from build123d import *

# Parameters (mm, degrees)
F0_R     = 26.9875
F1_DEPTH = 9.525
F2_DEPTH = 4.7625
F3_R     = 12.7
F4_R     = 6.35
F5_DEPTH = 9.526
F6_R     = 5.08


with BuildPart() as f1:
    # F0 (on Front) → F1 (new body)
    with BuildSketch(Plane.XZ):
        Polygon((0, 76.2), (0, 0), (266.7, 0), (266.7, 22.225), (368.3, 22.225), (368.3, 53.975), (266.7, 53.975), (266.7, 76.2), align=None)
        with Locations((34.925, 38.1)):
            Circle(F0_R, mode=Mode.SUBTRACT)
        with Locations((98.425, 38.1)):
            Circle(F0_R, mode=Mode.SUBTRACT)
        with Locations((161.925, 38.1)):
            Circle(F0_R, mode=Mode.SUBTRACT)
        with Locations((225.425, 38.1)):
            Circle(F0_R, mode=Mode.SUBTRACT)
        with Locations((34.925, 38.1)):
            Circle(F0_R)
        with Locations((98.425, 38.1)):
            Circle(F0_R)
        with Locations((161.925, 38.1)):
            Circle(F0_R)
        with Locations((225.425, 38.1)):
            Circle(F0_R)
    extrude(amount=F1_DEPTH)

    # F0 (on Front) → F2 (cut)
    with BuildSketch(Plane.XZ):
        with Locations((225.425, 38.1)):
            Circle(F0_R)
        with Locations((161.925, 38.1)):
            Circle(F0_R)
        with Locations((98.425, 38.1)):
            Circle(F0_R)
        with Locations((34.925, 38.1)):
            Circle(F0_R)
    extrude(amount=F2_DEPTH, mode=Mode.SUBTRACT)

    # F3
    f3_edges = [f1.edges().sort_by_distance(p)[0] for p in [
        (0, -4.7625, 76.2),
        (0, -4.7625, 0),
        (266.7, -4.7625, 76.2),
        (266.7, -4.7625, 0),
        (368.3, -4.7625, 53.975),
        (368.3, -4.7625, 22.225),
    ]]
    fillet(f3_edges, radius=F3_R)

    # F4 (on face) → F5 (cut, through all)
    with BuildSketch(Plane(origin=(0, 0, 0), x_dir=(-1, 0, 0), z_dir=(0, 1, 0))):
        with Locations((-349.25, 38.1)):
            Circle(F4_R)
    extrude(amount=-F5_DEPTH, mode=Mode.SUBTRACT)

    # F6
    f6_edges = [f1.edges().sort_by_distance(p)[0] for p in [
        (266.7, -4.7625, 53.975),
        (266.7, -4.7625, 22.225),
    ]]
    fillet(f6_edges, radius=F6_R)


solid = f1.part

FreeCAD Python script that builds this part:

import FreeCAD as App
import Part
import Sketcher

V = App.Vector
Q = App.Units.Quantity


def edges_at(feature, points):
    """Names of the edges that pass closest to the given points."""
    edges = feature.Shape.Edges
    near = lambda p: min(range(len(edges)), key=lambda i: edges[i].distToShape(Part.Vertex(*p))[0])
    return sorted({f"Edge{near(p) + 1}" for p in points})

doc = App.newDocument("Part")
body = doc.addObject("PartDesign::Body", "Body")

# Sketch on XZ plane
sketch1 = body.newObject("Sketcher::SketchObject", "Sketch")
sketch1.AttachmentSupport = (doc.getObject("XZ_Plane"), [""])
sketch1.MapMode = "FlatFace"
sketch1.addGeometry([
    Part.LineSegment(V(0, 76, 0), V(0, 0, 0)),  # 0
    Part.LineSegment(V(0, 0, 0), V(267, 0, 0)),  # 1
    Part.LineSegment(V(267, 0, 0), V(267, 22, 0)),  # 2
    Part.LineSegment(V(267, 22, 0), V(368, 22, 0)),  # 3
    Part.LineSegment(V(368, 22, 0), V(368, 54, 0)),  # 4
    Part.LineSegment(V(368, 54, 0), V(267, 54, 0)),  # 5
    Part.LineSegment(V(267, 54, 0), V(267, 76, 0)),  # 6
    Part.LineSegment(V(267, 76, 0), V(0, 76, 0)),  # 7
], False)
sketch1.addConstraint([
    Sketcher.Constraint("Coincident", 0, 2, 1, 1),
    Sketcher.Constraint("Coincident", 1, 2, 2, 1),
    Sketcher.Constraint("Coincident", 2, 2, 3, 1),
    Sketcher.Constraint("Coincident", 3, 2, 4, 1),
    Sketcher.Constraint("Coincident", 4, 2, 5, 1),
    Sketcher.Constraint("Coincident", 5, 2, 6, 1),
    Sketcher.Constraint("Coincident", 6, 2, 7, 1),
    Sketcher.Constraint("Coincident", 7, 2, 0, 1),
    Sketcher.Constraint("Vertical", 0),
    Sketcher.Constraint("Horizontal", 1),
    Sketcher.Constraint("Vertical", 2),
    Sketcher.Constraint("Horizontal", 3),
    Sketcher.Constraint("Vertical", 4),
    Sketcher.Constraint("Horizontal", 5),
    Sketcher.Constraint("Vertical", 6),
    Sketcher.Constraint("Horizontal", 7),
    Sketcher.Constraint("Coincident", 0, 2, -1, 1),
    Sketcher.Constraint("Vertical", 2, 2, 5, 2),
    Sketcher.Constraint("Equal", 2, 6),
    Sketcher.Constraint("DistanceX", 3, 1, 3, 2, Q("4 in")),
    Sketcher.Constraint("DistanceY", 0, 2, 0, 1, Q("3 in")),
    Sketcher.Constraint("DistanceX", 1, 1, 1, 2, Q("10.5 in")),
    Sketcher.Constraint("DistanceY", 4, 1, 4, 2, Q("1.25 in")),
])
pad1 = body.newObject("PartDesign::Pad", "Pad")
pad1.Profile = sketch1
pad1.Length = Q("0.375 in")

# Sketch on XZ plane
sketch2 = body.newObject("Sketcher::SketchObject", "Sketch001")
sketch2.AttachmentSupport = (doc.getObject("XZ_Plane"), [""])
sketch2.MapMode = "FlatFace"
sketch2.addGeometry([
    Part.Circle(V(225, 38, 0), V(0, 0, 1), 27),
    Part.Circle(V(162, 38, 0), V(0, 0, 1), 27),
    Part.Circle(V(98, 38, 0), V(0, 0, 1), 27),
    Part.Circle(V(35, 38, 0), V(0, 0, 1), 27),
], False)
sketch2.addConstraint([
    Sketcher.Constraint("Equal", 0, 1),
    Sketcher.Constraint("Equal", 1, 2),
    Sketcher.Constraint("Equal", 2, 3),
    Sketcher.Constraint("Horizontal", 0, 3, 1, 3),
    Sketcher.Constraint("Horizontal", 1, 3, 2, 3),
    Sketcher.Constraint("Horizontal", 2, 3, 3, 3),
    Sketcher.Constraint("Diameter", 0, Q("2.125 in")),
    Sketcher.Constraint("DistanceX", 2, 3, 0, 3, Q("5 in")),
    Sketcher.Constraint("DistanceX", 3, 3, 1, 3, Q("5 in")),
    Sketcher.Constraint("DistanceY", -1, 1, 0, 3, Q("1.5 in")),
    Sketcher.Constraint("DistanceX", 1, 3, 0, 3, Q("2.5 in")),
    Sketcher.Constraint("DistanceX", -1, 1, 0, 3, Q("8.875 in")),
])
pocket1 = body.newObject("PartDesign::Pocket", "Pocket")
pocket1.Profile = sketch2
pocket1.Length = Q("0.1875 in")
pocket1.Reversed = True
doc.recompute()

fillet = body.newObject("PartDesign::Fillet", "Fillet")
fillet.Base = (pocket1, edges_at(pocket1, [
    (0, -4.763, 76.2),
    (0, -4.763, 0),
    (266.7, -4.763, 76.2),
    (266.7, -4.763, 0),
    (368.3, -4.763, 53.975),
    (368.3, -4.763, 22.225),
]))
fillet.Radius = Q("0.5 in")

# Sketch on XZ plane
sketch3 = body.newObject("Sketcher::SketchObject", "Sketch002")
sketch3.AttachmentSupport = (doc.getObject("XZ_Plane"), [""])
sketch3.MapMode = "FlatFace"
sketch3.addGeometry(Part.Circle(V(349, 38, 0), V(0, 0, 1), 6), False)
sketch3.addConstraint([
    Sketcher.Constraint("Diameter", 0, Q("0.5 in")),
    Sketcher.Constraint("DistanceY", -1, 1, 0, 3, Q("1.5 in")),
    Sketcher.Constraint("DistanceX", -1, 1, 0, 3, Q("13.75 in")),
])
pocket2 = body.newObject("PartDesign::Pocket", "Pocket001")
pocket2.Profile = sketch3
pocket2.Type = "ThroughAll"
pocket2.Reversed = True
doc.recompute()

fillet2 = body.newObject("PartDesign::Fillet", "Fillet001")
fillet2.Base = (pocket2, edges_at(pocket2, [(266.7, -4.763, 53.975), (266.7, -4.763, 22.225)]))
fillet2.Radius = Q("0.2 in")

doc.recompute()
